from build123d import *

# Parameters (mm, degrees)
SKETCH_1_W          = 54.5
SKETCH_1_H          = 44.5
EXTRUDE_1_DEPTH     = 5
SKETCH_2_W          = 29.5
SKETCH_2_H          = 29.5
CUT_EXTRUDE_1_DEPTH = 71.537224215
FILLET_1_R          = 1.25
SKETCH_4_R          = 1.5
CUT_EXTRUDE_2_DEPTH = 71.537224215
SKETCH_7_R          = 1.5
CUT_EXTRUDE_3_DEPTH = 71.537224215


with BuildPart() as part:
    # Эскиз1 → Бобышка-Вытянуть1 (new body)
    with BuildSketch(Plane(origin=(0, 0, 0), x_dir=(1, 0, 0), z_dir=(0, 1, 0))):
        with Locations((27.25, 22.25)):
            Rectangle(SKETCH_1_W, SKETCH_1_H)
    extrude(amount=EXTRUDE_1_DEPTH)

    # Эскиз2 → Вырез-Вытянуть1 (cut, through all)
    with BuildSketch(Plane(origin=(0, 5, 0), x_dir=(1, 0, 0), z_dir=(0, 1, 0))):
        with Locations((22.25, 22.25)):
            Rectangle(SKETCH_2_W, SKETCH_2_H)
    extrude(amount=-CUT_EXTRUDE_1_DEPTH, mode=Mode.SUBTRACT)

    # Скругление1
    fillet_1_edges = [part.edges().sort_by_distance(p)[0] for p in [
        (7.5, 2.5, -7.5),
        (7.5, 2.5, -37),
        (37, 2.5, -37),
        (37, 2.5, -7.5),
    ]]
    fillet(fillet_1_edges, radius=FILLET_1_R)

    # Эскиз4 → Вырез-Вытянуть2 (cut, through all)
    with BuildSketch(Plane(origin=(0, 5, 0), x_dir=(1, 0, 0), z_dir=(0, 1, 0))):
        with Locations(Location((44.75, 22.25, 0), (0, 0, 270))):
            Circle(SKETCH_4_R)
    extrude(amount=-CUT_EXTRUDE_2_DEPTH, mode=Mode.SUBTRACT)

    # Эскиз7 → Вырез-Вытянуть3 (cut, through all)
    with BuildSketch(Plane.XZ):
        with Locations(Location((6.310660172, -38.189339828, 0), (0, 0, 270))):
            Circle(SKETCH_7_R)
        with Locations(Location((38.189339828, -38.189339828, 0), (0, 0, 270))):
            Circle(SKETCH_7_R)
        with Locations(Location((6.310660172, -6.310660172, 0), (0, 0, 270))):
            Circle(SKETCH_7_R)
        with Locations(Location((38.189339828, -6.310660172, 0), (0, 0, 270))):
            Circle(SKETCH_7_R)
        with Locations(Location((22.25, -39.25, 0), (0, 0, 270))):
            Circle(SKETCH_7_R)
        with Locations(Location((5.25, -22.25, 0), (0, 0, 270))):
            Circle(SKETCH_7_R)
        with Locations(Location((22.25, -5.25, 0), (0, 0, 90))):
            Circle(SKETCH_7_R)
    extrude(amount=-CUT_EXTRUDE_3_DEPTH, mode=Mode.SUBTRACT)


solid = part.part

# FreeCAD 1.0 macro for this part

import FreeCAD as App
import Part
import Sketcher

V = App.Vector
Q = App.Units.Quantity


def edges_at(feature, points):
    """Names of the edges that pass closest to the given points."""
    edges = feature.Shape.Edges
    near = lambda p: min(range(len(edges)), key=lambda i: edges[i].distToShape(Part.Vertex(*p))[0])
    return sorted({f"Edge{near(p) + 1}" for p in points})

doc = App.newDocument("Part")
body = doc.addObject("PartDesign::Body", "Body")

# Sketch on XZ plane
sketch1 = body.newObject("Sketcher::SketchObject", "Sketch")
sketch1.AttachmentSupport = (doc.getObject("XZ_Plane"), [""])
sketch1.MapMode = "FlatFace"
sketch1.addGeometry(Part.LineSegment(V(0, -44.5, 0), V(0, 0, 0)), False)
sketch1.addGeometry(Part.LineSegment(V(0, 0, 0), V(54.5, 0, 0)), False)
sketch1.addGeometry(Part.LineSegment(V(54.5, 0, 0), V(54.5, -44.5, 0)), False)
sketch1.addGeometry(Part.LineSegment(V(54.5, -44.5, 0), V(0, -44.5, 0)), False)
sketch1.addConstraint(Sketcher.Constraint("Coincident", 0, 2, 1, 1))
sketch1.addConstraint(Sketcher.Constraint("Coincident", 1, 2, 2, 1))
sketch1.addConstraint(Sketcher.Constraint("Coincident", 2, 2, 3, 1))
sketch1.addConstraint(Sketcher.Constraint("Coincident", 3, 2, 0, 1))
sketch1.addConstraint(Sketcher.Constraint("Vertical", 0))
sketch1.addConstraint(Sketcher.Constraint("Horizontal", 1))
sketch1.addConstraint(Sketcher.Constraint("Vertical", 2))
sketch1.addConstraint(Sketcher.Constraint("Horizontal", 3))
sketch1.addConstraint(Sketcher.Constraint("Coincident", 0, 2, -1, 1))
sketch1.addConstraint(Sketcher.Constraint("DistanceX", 1, 1, 1, 2, Q("54.5 mm")))
sketch1.addConstraint(Sketcher.Constraint("DistanceY", 0, 1, 0, 2, Q("44.5 mm")))
pad1 = body.newObject("PartDesign::Pad", "Pad")
pad1.Profile = sketch1
pad1.Length = 5
pad1.Reversed = True

# Sketch on XZ plane
sketch2 = body.newObject("Sketcher::SketchObject", "Sketch001")
sketch2.AttachmentSupport = (doc.getObject("XZ_Plane"), [""])
sketch2.MapMode = "FlatFace"
sketch2.AttachmentOffset = App.Placement(V(0, 0, -5), App.Rotation())
sketch2.addGeometry(Part.LineSegment(V(7.5, -37, 0), V(7.5, -7.5, 0)), False)
sketch2.addGeometry(Part.LineSegment(V(7.5, -7.5, 0), V(37, -7.5, 0)), False)
sketch2.addGeometry(Part.LineSegment(V(37, -7.5, 0), V(37, -37, 0)), False)
sketch2.addGeometry(Part.LineSegment(V(37, -37, 0), V(7.5, -37, 0)), False)
sketch2.addConstraint(Sketcher.Constraint("Coincident", 0, 2, 1, 1))
sketch2.addConstraint(Sketcher.Constraint("Coincident", 1, 2, 2, 1))
sketch2.addConstraint(Sketcher.Constraint("Coincident", 2, 2, 3, 1))
sketch2.addConstraint(Sketcher.Constraint("Coincident", 3, 2, 0, 1))
sketch2.addConstraint(Sketcher.Constraint("Vertical", 0))
sketch2.addConstraint(Sketcher.Constraint("Horizontal", 1))
sketch2.addConstraint(Sketcher.Constraint("Vertical", 2))
sketch2.addConstraint(Sketcher.Constraint("Horizontal", 3))
sketch2.addConstraint(Sketcher.Constraint("Equal", 3, 0))
sketch2.addConstraint(Sketcher.Constraint("DistanceX", 1, 1, 1, 2, Q("29.5 mm")))
sketch2.addConstraint(Sketcher.Constraint("DistanceX", -1, 1, 1, 2, Q("37 mm")))
sketch2.addConstraint(Sketcher.Constraint("DistanceY", 2, 2, -1, 1, Q("37 mm")))
pocket1 = body.newObject("PartDesign::Pocket", "Pocket")
pocket1.Profile = sketch2
pocket1.Type = "ThroughAll"
pocket1.Reversed = True
doc.recompute()

fillet = body.newObject("PartDesign::Fillet", "Fillet")
fillet.Base = (pocket1, edges_at(pocket1, [
    (7.5, 2.5, -7.5),
    (7.5, 2.5, -37),
    (37, 2.5, -37),
    (37, 2.5, -7.5),
]))
fillet.Radius = 1.25

# Sketch on XZ plane
sketch3 = body.newObject("Sketcher::SketchObject", "Sketch002")
sketch3.AttachmentSupport = (doc.getObject("XZ_Plane"), [""])
sketch3.MapMode = "FlatFace"
sketch3.AttachmentOffset = App.Placement(V(0, 0, -5), App.Rotation())
sketch3.addGeometry(Part.Circle(V(44.75, -22.25, 0), V(0, 0, 1), 1.5), False)
sketch3.addConstraint(Sketcher.Constraint("Diameter", 0, Q("3 mm")))
sketch3.addConstraint(Sketcher.Constraint("DistanceX", -1, 1, 0, 3, Q("44.75 mm")))
sketch3.addConstraint(Sketcher.Constraint("DistanceY", 0, 3, -1, 1, Q("22.25 mm")))
pocket2 = body.newObject("PartDesign::Pocket", "Pocket001")
pocket2.Profile = sketch3
pocket2.Type = "ThroughAll"
pocket2.Reversed = True

# Sketch on XZ plane
sketch4 = body.newObject("Sketcher::SketchObject", "Sketch003")
sketch4.AttachmentSupport = (doc.getObject("XZ_Plane"), [""])
sketch4.MapMode = "FlatFace"
sketch4.addGeometry(Part.Circle(V(6.31066, -38.18934, 0), V(0, 0, 1), 1.5), False)
sketch4.addGeometry(Part.Circle(V(38.18934, -38.18934, 0), V(0, 0, 1), 1.5), False)
sketch4.addGeometry(Part.Circle(V(6.31066, -6.31066, 0), V(0, 0, 1), 1.5), False)
sketch4.addGeometry(Part.Circle(V(38.18934, -6.31066, 0), V(0, 0, 1), 1.5), False)
sketch4.addGeometry(Part.Circle(V(22.25, -39.25, 0), V(0, 0, 1), 1.5), False)
sketch4.addGeometry(Part.Circle(V(5.25, -22.25, 0), V(0, 0, 1), 1.5), False)
sketch4.addGeometry(Part.Circle(V(22.25, -5.25, 0), V(0, 0, 1), 1.5), False)
sketch4.addConstraint(Sketcher.Constraint("Equal", 0, 1))
sketch4.addConstraint(Sketcher.Constraint("Equal", 1, 2))
sketch4.addConstraint(Sketcher.Constraint("Equal", 2, 3))
sketch4.addConstraint(Sketcher.Constraint("Equal", 3, 4))
sketch4.addConstraint(Sketcher.Constraint("Equal", 4, 5))
sketch4.addConstraint(Sketcher.Constraint("Equal", 5, 6))
sketch4.addConstraint(Sketcher.Constraint("Horizontal", 0, 3, 1, 3))
sketch4.addConstraint(Sketcher.Constraint("Horizontal", 2, 3, 3, 3))
sketch4.addConstraint(Sketcher.Constraint("Vertical", 0, 3, 2, 3))
sketch4.addConstraint(Sketcher.Constraint("Vertical", 1, 3, 3, 3))
sketch4.addConstraint(Sketcher.Constraint("Vertical", 4, 3, 6, 3))
sketch4.addConstraint(Sketcher.Constraint("Diameter", 0, Q("3 mm")))
sketch4.addConstraint(Sketcher.Constraint("DistanceX", 5, 3, 4, 3, Q("17 mm")))
sketch4.addConstraint(Sketcher.Constraint("DistanceY", 4, 3, 5, 3, Q("17 mm")))
sketch4.addConstraint(Sketcher.Constraint("DistanceY", 5, 3, 6, 3, Q("17 mm")))
sketch4.addConstraint(Sketcher.Constraint("DistanceX", -1, 1, 4, 3, Q("22.25 mm")))
sketch4.addConstraint(Sketcher.Constraint("DistanceY", 4, 3, -1, 1, Q("39.25 mm")))
sketch4.addConstraint(Sketcher.Constraint("DistanceX", -1, 1, 0, 3, Q("6.31066 mm")))
sketch4.addConstraint(Sketcher.Constraint("DistanceY", 0, 3, -1, 1, Q("38.18934 mm")))
sketch4.addConstraint(Sketcher.Constraint("DistanceX", -1, 1, 1, 3, Q("38.18934 mm")))
sketch4.addConstraint(Sketcher.Constraint("DistanceY", 2, 3, -1, 1, Q("6.31066 mm")))
pocket3 = body.newObject("PartDesign::Pocket", "Pocket002")
pocket3.Profile = sketch4
pocket3.Type = "ThroughAll"

doc.recompute()
